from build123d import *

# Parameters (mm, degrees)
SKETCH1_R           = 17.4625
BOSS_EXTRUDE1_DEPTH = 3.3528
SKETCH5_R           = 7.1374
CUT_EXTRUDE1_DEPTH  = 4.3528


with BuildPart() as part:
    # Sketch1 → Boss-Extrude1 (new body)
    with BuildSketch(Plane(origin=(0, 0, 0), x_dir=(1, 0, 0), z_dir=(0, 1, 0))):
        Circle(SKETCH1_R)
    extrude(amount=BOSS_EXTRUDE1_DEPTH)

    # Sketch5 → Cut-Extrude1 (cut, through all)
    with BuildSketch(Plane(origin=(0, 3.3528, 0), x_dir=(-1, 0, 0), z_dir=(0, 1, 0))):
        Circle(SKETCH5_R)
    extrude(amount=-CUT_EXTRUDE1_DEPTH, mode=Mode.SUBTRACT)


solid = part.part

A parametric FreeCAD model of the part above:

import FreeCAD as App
import Part
import Sketcher
Q = App.Units.Quantity

doc = App.newDocument("Part")
body = doc.addObject("PartDesign::Body", "Body")

sketch1 = body.newObject("Sketcher::SketchObject", "Sketch")
sketch1.AttachmentSupport = (doc.getObject("XZ_Plane"), [""])
sketch1.MapMode = "FlatFace"
sketch1.addGeometry(Part.Circle(App.Vector(0, 0, 0), App.Vector(0, 0, 1), 17), False)
sketch1.addConstraint([
    Sketcher.Constraint("Coincident", 0, 3, -1, 1),
    Sketcher.Constraint("Diameter", 0, Q("1.375 in")),
])
pad1 = body.newObject("PartDesign::Pad", "Pad")
pad1.Profile = sketch1
pad1.Length = Q("0.132 in")
pad1.Reversed = True

sketch2 = body.newObject("Sketcher::SketchObject", "Sketch001")
sketch2.AttachmentSupport = (doc.getObject("XZ_Plane"), [""])
sketch2.MapMode = "FlatFace"
sketch2.AttachmentOffset = App.Placement(App.Vector(0, 0, -0.132 * 25.4), App.Rotation())
sketch2.addGeometry(Part.Circle(App.Vector(0, 0, 0), App.Vector(0, 0, 1), 7), False)
sketch2.addConstraint([
    Sketcher.Constraint("Coincident", 0, 3, -1, 1),
    Sketcher.Constraint("Diameter", 0, Q("0.562 in")),
])
pocket1 = body.newObject("PartDesign::Pocket", "Pocket")
pocket1.Profile = sketch2
pocket1.Type = "ThroughAll"
pocket1.Reversed = True

doc.recompute()
